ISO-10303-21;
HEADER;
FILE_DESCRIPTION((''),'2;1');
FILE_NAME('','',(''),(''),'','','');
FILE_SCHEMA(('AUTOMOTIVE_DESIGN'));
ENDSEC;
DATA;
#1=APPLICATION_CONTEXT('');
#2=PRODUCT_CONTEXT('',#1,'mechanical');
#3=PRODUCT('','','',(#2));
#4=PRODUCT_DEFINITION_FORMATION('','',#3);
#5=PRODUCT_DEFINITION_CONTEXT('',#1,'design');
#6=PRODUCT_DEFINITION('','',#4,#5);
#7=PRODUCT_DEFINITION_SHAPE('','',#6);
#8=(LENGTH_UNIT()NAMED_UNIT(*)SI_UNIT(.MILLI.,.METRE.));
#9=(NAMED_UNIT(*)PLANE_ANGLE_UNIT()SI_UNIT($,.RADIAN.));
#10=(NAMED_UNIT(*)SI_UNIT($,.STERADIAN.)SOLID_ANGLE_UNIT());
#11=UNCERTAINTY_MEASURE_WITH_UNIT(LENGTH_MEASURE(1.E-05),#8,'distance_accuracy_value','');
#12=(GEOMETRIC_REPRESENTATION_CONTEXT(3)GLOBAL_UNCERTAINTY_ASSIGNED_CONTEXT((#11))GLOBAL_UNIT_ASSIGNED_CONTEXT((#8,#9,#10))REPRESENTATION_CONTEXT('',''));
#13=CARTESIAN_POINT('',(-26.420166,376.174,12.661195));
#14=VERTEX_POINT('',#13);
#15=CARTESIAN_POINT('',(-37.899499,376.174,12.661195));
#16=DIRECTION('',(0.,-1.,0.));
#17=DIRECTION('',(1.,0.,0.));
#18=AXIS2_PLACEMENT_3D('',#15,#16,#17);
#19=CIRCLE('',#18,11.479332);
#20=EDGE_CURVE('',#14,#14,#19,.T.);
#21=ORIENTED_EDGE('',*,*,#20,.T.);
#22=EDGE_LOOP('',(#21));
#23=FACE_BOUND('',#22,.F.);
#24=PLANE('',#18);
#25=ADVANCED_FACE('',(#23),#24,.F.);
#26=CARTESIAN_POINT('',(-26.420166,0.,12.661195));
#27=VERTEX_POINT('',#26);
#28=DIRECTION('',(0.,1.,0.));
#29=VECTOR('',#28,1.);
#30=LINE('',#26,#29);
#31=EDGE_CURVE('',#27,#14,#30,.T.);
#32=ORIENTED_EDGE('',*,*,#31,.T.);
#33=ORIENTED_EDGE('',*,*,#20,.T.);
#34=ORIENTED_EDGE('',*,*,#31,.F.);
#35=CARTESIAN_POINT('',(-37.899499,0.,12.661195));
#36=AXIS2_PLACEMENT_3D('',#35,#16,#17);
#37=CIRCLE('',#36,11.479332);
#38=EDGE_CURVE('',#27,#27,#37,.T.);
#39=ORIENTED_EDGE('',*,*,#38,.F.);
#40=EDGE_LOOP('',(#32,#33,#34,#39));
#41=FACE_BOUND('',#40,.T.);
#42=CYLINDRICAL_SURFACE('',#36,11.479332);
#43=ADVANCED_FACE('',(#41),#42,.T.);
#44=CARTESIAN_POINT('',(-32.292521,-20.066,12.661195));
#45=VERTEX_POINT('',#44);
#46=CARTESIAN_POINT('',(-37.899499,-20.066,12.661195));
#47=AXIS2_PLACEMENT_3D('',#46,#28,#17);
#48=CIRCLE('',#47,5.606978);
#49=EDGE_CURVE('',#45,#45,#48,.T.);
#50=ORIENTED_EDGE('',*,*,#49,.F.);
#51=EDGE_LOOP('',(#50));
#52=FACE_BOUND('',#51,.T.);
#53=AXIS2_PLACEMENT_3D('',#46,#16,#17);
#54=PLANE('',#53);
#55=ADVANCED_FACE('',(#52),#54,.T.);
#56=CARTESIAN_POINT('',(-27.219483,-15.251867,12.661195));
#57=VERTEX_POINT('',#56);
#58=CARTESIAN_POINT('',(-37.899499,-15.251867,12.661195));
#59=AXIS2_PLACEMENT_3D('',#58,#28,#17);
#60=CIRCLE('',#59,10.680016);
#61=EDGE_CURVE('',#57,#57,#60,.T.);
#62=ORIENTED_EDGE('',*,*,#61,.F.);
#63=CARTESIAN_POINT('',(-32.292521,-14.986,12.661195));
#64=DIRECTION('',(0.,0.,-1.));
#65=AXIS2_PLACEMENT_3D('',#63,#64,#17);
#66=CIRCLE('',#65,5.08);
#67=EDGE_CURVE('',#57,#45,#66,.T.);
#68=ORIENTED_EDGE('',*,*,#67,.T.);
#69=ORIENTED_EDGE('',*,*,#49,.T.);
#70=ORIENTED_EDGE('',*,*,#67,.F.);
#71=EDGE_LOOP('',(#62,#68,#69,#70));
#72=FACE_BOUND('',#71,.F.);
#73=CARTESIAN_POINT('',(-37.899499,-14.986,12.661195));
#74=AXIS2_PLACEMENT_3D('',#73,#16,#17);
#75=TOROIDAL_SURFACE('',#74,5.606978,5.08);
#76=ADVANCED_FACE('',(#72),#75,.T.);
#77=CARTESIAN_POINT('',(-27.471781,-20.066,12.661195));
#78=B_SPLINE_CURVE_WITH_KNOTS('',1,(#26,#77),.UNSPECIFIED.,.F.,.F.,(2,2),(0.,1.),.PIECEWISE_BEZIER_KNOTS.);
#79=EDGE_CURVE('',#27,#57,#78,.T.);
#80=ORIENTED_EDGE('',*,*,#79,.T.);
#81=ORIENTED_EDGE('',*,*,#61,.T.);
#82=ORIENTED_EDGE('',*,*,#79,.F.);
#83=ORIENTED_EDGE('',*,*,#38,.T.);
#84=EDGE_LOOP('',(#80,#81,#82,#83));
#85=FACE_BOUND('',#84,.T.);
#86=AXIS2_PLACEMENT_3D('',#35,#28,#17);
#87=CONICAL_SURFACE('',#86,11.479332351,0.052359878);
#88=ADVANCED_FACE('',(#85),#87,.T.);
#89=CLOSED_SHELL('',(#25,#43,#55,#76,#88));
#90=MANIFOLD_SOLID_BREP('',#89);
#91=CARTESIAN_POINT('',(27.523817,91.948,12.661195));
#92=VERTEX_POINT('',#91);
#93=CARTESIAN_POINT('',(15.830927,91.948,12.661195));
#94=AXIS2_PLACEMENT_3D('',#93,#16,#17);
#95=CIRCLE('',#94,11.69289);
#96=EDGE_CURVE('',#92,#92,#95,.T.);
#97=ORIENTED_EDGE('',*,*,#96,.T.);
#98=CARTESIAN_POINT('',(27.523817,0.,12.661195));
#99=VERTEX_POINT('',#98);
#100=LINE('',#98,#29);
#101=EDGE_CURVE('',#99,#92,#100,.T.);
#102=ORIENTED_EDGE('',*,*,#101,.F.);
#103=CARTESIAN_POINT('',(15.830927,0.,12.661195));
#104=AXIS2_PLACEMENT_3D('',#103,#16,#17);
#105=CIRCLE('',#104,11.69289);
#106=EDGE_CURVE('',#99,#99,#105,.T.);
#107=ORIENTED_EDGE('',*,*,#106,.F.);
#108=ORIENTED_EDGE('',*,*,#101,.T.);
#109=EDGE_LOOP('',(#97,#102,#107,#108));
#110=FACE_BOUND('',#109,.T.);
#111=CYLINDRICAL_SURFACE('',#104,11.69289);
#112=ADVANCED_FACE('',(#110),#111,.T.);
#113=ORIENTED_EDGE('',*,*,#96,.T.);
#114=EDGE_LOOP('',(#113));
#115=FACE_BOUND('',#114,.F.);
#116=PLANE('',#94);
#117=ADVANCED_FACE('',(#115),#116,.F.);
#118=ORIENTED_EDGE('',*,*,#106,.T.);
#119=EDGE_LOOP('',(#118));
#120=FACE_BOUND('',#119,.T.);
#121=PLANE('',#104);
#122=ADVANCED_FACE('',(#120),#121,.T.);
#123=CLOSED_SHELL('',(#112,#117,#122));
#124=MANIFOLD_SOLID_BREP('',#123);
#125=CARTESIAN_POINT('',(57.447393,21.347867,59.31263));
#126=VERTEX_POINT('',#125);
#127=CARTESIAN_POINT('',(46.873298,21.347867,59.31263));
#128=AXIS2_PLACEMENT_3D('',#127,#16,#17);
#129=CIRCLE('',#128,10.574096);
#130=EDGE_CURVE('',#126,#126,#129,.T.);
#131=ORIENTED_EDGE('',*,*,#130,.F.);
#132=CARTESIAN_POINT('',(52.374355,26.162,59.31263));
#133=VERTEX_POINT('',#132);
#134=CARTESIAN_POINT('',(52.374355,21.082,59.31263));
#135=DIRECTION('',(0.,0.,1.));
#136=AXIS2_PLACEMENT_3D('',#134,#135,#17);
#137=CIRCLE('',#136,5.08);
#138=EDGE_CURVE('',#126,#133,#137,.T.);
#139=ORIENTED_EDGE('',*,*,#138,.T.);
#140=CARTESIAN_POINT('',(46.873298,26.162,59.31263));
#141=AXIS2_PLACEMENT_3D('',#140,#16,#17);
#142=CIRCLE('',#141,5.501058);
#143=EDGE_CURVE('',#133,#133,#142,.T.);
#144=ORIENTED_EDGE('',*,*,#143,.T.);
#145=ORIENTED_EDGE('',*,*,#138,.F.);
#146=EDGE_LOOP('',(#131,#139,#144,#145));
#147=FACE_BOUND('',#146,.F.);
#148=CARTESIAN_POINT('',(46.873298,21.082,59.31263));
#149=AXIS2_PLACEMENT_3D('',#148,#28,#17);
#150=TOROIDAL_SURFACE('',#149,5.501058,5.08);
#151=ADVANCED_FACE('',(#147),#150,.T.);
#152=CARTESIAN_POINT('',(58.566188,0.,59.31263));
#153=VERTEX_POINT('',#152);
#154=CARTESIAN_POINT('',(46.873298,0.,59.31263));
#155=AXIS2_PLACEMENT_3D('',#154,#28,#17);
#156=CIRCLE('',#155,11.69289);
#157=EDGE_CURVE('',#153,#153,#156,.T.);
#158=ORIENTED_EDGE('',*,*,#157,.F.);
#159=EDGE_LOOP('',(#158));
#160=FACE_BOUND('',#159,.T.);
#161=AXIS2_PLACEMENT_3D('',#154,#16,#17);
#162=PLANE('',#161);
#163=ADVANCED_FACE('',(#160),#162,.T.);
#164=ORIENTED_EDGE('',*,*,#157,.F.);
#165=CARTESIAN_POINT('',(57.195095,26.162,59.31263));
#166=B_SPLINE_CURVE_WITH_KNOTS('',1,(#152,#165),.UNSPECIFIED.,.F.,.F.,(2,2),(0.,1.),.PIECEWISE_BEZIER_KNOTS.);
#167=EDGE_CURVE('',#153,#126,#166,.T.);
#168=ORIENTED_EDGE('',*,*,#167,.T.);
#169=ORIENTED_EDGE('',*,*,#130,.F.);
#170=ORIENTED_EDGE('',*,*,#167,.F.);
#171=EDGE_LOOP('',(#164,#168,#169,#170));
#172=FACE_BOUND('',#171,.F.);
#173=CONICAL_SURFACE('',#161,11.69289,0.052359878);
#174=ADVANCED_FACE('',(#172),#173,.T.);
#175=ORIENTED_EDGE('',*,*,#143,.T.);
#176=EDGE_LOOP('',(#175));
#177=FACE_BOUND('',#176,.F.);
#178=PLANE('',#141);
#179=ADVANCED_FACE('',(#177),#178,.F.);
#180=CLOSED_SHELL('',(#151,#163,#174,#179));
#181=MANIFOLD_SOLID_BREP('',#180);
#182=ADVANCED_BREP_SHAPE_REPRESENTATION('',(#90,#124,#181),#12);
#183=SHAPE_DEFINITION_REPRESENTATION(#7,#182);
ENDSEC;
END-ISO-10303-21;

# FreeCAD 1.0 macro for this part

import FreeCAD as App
import Part
import Sketcher
from FreeCAD import Vector
Q = App.Units.Quantity


def edges_at(feature, points):
    """Names of the edges that pass closest to the given points."""
    edges = feature.Shape.Edges
    near = lambda p: min(range(len(edges)), key=lambda i: edges[i].distToShape(Part.Vertex(*p))[0])
    return sorted({f"Edge{near(p) + 1}" for p in points})

doc = App.newDocument("Part")
body = doc.addObject("PartDesign::Body", "Body")

# Sketch on XZ plane
sketch1 = body.newObject("Sketcher::SketchObject", "Sketch")
sketch1.AttachmentSupport = (doc.getObject("XZ_Plane"), [""])
sketch1.MapMode = "FlatFace"
sketch1.addGeometry(Part.Circle(Vector(-38, 13, 0), Vector(0, 0, 1), 11), False)
sketch1.addConstraint([
    Sketcher.Constraint("Diameter", 0, 22.958665),
    Sketcher.Constraint("DistanceX", 0, 3, -1, 1, 37.899499),
    Sketcher.Constraint("DistanceY", -1, 1, 0, 3, 12.661195),
])
pad1 = body.newObject("PartDesign::Pad", "Pad")
pad1.Profile = sketch1
pad1.Length = Q("14.81 in")
pad1.Reversed = True

# Sketch on XZ plane
sketch2 = body.newObject("Sketcher::SketchObject", "Sketch001")
sketch2.AttachmentSupport = (doc.getObject("XZ_Plane"), [""])
sketch2.MapMode = "FlatFace"
sketch2.addGeometry(Part.Circle(Vector(-38, 13, 0), Vector(0, 0, 1), 11), False)
sketch2.addConstraint([
    Sketcher.Constraint("Diameter", 0, 22.958665),
    Sketcher.Constraint("DistanceX", 0, 3, -1, 1, 37.899499),
    Sketcher.Constraint("DistanceY", -1, 1, 0, 3, 12.661195),
])
pad2 = body.newObject("PartDesign::Pad", "Pad001")
pad2.Profile = sketch2
pad2.Length = Q("0.79 in")
pad2.TaperAngle = -3
doc.recompute()

fillet = body.newObject("PartDesign::Fillet", "Fillet")
fillet.Base = (pad2, edges_at(pad2, [(-48.327, -20.066, 12.661)]))
fillet.Radius = Q("0.2 in")
body2 = doc.addObject("PartDesign::Body", "Body001")

# Sketch on XZ plane
sketch3 = body2.newObject("Sketcher::SketchObject", "Sketch002")
sketch3.AttachmentSupport = (doc.getObject("XZ_Plane001"), [""])
sketch3.MapMode = "FlatFace"
sketch3.addGeometry(Part.Circle(Vector(16, 13, 0), Vector(0, 0, 1), 12), False)
sketch3.addConstraint([
    Sketcher.Constraint("Diameter", 0, Q("0.9207 in")),
    Sketcher.Constraint("DistanceX", -1, 1, 0, 3, 15.830927),
    Sketcher.Constraint("DistanceY", -1, 1, 0, 3, 12.661195),
])
pad3 = body2.newObject("PartDesign::Pad", "Pad002")
pad3.Profile = sketch3
pad3.Length = Q("3.62 in")
pad3.Reversed = True
body3 = doc.addObject("PartDesign::Body", "Body002")

# Sketch on XZ plane
sketch4 = body3.newObject("Sketcher::SketchObject", "Sketch003")
sketch4.AttachmentSupport = (doc.getObject("XZ_Plane002"), [""])
sketch4.MapMode = "FlatFace"
sketch4.addGeometry(Part.Circle(Vector(47, 59, 0), Vector(0, 0, 1), 12), False)
sketch4.addConstraint([
    Sketcher.Constraint("Diameter", 0, Q("0.9207 in")),
    Sketcher.Constraint("DistanceY", -1, 1, 0, 3, 59.31263),
    Sketcher.Constraint("DistanceX", -1, 1, 0, 3, 46.873298),
])
pad4 = body3.newObject("PartDesign::Pad", "Pad003")
pad4.Profile = sketch4
pad4.Length = Q("1.03 in")
pad4.Reversed = True
pad4.TaperAngle = -3
doc.recompute()

fillet2 = body3.newObject("PartDesign::Fillet", "Fillet001")
fillet2.Base = (pad4, edges_at(pad4, [(36.551, 26.162, 59.313)]))
fillet2.Radius = Q("0.2 in")

doc.recompute()
